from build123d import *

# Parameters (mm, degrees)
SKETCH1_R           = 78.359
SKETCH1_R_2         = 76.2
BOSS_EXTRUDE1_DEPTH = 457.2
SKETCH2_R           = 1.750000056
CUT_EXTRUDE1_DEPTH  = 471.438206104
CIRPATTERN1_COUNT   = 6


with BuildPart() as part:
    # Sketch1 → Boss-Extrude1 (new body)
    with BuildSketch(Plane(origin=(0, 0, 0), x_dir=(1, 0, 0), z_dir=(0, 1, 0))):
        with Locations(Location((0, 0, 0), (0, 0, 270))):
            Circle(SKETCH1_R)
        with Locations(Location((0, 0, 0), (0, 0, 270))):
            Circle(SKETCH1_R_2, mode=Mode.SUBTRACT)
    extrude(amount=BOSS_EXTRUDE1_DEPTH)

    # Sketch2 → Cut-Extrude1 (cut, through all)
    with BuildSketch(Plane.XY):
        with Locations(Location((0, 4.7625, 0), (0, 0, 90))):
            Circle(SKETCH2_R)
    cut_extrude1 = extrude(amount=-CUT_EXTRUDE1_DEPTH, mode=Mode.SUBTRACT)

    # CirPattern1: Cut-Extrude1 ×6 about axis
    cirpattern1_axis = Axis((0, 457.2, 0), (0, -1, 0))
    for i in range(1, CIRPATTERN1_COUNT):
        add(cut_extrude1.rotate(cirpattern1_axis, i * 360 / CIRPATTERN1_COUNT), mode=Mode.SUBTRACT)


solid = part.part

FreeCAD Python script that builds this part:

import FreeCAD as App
import Part
import Sketcher
from FreeCAD import Vector
Q = App.Units.Quantity

doc = App.newDocument("Part")
params = doc.addObject("Spreadsheet::Sheet", "Params")
for row, (alias, value) in enumerate([
    ("sketch1_diameter", "6 in"),
    ("sketch1_diameter2", "6.17 in"),
    ("pad1_length", "18 in"),
], start=1):
    params.set(f"A{row}", alias)
    params.set(f"B{row}", "=" + value)
    params.setAlias(f"B{row}", alias)

body = doc.addObject("PartDesign::Body", "Body")

# Sketch on XZ plane
sketch1 = body.newObject("Sketcher::SketchObject", "Sketch")
sketch1.AttachmentSupport = (doc.getObject("XZ_Plane"), [""])
sketch1.MapMode = "FlatFace"
sketch1.addGeometry([
    Part.Circle(Vector(0, 0, 0), Vector(0, 0, 1), 78.359),
    Part.Circle(Vector(0, 0, 0), Vector(0, 0, 1), 76.2),
], False)
sketch1.addConstraint([
    Sketcher.Constraint("Coincident", 0, 3, -1, 1),
    Sketcher.Constraint("Coincident", 1, 3, -1, 1),
    Sketcher.Constraint("Diameter", 1, Q("6 in")),
    Sketcher.Constraint("Diameter", 0, Q("6.17 in")),
])
sketch1.setExpression("Constraints[2]", "Params.sketch1_diameter")
sketch1.setExpression("Constraints[3]", "Params.sketch1_diameter2")
pad1 = body.newObject("PartDesign::Pad", "Pad")
pad1.Profile = sketch1
pad1.setExpression("Length", "Params.pad1_length")
pad1.Reversed = True

# Sketch on XY plane
sketch2 = body.newObject("Sketcher::SketchObject", "Sketch001")
sketch2.AttachmentSupport = (doc.getObject("XY_Plane"), [""])
sketch2.MapMode = "FlatFace"
sketch2.addGeometry(Part.Circle(Vector(0, 4.7625, 0), Vector(0, 0, 1), 1.75), False)
sketch2.addConstraint([
    Sketcher.Constraint("PointOnObject", 0, 3, -2),
    Sketcher.Constraint("Diameter", 0, Q("3.5 mm")),
    Sketcher.Constraint("DistanceY", -1, 1, 0, 3, Q("0.1875 in")),
])
pocket1 = body.newObject("PartDesign::Pocket", "Pocket")
pocket1.Profile = sketch2
pocket1.Type = "ThroughAll"
doc.recompute()

polarpattern = body.newObject("PartDesign::PolarPattern", "PolarPattern")
polarpattern.Originals = [pocket1]
polarpattern.Axis = (doc.getObject("Y_Axis"), [""])
polarpattern.Angle = 360
polarpattern.Occurrences = 6
body.Tip = polarpattern

doc.recompute()
